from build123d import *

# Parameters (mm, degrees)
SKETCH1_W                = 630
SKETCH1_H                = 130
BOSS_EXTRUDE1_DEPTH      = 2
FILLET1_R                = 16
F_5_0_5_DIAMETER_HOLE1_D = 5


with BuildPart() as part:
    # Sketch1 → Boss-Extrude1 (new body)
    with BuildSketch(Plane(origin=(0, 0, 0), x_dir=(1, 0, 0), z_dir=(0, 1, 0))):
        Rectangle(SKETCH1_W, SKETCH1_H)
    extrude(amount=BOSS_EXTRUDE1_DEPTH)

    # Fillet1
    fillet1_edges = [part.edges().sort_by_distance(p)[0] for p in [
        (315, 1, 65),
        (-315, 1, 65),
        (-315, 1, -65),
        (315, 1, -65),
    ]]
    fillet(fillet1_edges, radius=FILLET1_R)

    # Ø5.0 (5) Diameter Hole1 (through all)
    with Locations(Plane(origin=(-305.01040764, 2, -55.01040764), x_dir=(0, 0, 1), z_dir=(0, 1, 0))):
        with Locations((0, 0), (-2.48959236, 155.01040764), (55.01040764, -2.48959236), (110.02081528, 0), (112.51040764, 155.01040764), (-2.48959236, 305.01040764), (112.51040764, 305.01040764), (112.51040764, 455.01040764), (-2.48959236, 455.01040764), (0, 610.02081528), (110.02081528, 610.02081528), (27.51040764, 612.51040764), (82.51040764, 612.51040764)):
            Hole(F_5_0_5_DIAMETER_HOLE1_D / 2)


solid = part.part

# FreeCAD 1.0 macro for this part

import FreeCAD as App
import Part
import Sketcher
from FreeCAD import Vector
Q = App.Units.Quantity


def edges_at(feature, points):
    """Names of the edges that pass closest to the given points."""
    edges = feature.Shape.Edges
    near = lambda p: min(range(len(edges)), key=lambda i: edges[i].distToShape(Part.Vertex(*p))[0])
    return sorted({f"Edge{near(p) + 1}" for p in points})


def add_polygon(sketch, points):
    """Adds a closed chain of lines whose ends are joined by coincident constraints."""
    first, n = sketch.GeometryCount, len(points)
    for a, b in zip(points, points[1:] + points[:1]):
        sketch.addGeometry(Part.LineSegment(App.Vector(*a, 0), App.Vector(*b, 0)), False)
    for i in range(n):
        sketch.addConstraint(Sketcher.Constraint("Coincident", first + i, 2, first + (i + 1) % n, 1))

doc = App.newDocument("Part")
body = doc.addObject("PartDesign::Body", "Body")

# Sketch on XZ plane
sketch1 = body.newObject("Sketcher::SketchObject", "Sketch")
sketch1.AttachmentSupport = (doc.getObject("XZ_Plane"), [""])
sketch1.MapMode = "FlatFace"
add_polygon(sketch1, [(-315, -65), (-315, 65), (315, 65), (315, -65)])  # lines 0-3
sketch1.addConstraint(Sketcher.Constraint("Vertical", 0))
sketch1.addConstraint(Sketcher.Constraint("Horizontal", 1))
sketch1.addConstraint(Sketcher.Constraint("Vertical", 2))
sketch1.addConstraint(Sketcher.Constraint("Horizontal", 3))
sketch1.addConstraint(Sketcher.Constraint("Symmetric", 0, 2, 2, 2, -1, 1))
sketch1.addConstraint(Sketcher.Constraint("DistanceX", 1, 1, 1, 2, Q("630 mm")))
sketch1.addConstraint(Sketcher.Constraint("DistanceY", 0, 1, 0, 2, Q("130 mm")))
pad1 = body.newObject("PartDesign::Pad", "Pad")
pad1.Profile = sketch1
pad1.Length = 2
pad1.Reversed = True
doc.recompute()

fillet = body.newObject("PartDesign::Fillet", "Fillet")
fillet.Base = (pad1, edges_at(pad1, [
    (315, 1, 65),
    (-315, 1, 65),
    (-315, 1, -65),
    (315, 1, -65),
]))
fillet.Radius = 16

# Sketch on XZ plane
sketch2 = body.newObject("Sketcher::SketchObject", "Sketch001")
sketch2.AttachmentSupport = (doc.getObject("XZ_Plane"), [""])
sketch2.MapMode = "FlatFace"
sketch2.AttachmentOffset = App.Placement(Vector(0, 0, -2), App.Rotation())
sketch2.addGeometry(Part.Circle(Vector(-305, -55, 0), Vector(0, 0, 1), 2.5), False)
sketch2.addGeometry(Part.Circle(Vector(-150, -57.5, 0), Vector(0, 0, 1), 2.5), False)
sketch2.addGeometry(Part.Circle(Vector(-307.5, 0, 0), Vector(0, 0, 1), 2.5), False)
sketch2.addGeometry(Part.Circle(Vector(-305, 55, 0), Vector(0, 0, 1), 2.5), False)
sketch2.addGeometry(Part.Circle(Vector(-150, 57.5, 0), Vector(0, 0, 1), 2.5), False)
sketch2.addGeometry(Part.Circle(Vector(0, -57.5, 0), Vector(0, 0, 1), 2.5), False)
sketch2.addGeometry(Part.Circle(Vector(0, 57.5, 0), Vector(0, 0, 1), 2.5), False)
sketch2.addGeometry(Part.Circle(Vector(150, 57.5, 0), Vector(0, 0, 1), 2.5), False)
sketch2.addGeometry(Part.Circle(Vector(150, -57.5, 0), Vector(0, 0, 1), 2.5), False)
sketch2.addGeometry(Part.Circle(Vector(305, -55, 0), Vector(0, 0, 1), 2.5), False)
sketch2.addGeometry(Part.Circle(Vector(305, 55, 0), Vector(0, 0, 1), 2.5), False)
sketch2.addGeometry(Part.Circle(Vector(307.5, -27.5, 0), Vector(0, 0, 1), 2.5), False)
sketch2.addGeometry(Part.Circle(Vector(307.5, 27.5, 0), Vector(0, 0, 1), 2.5), False)
sketch2.addConstraint(Sketcher.Constraint("Equal", 0, 1))
sketch2.addConstraint(Sketcher.Constraint("Equal", 1, 2))
sketch2.addConstraint(Sketcher.Constraint("Equal", 2, 3))
sketch2.addConstraint(Sketcher.Constraint("Equal", 3, 4))
sketch2.addConstraint(Sketcher.Constraint("Equal", 4, 5))
sketch2.addConstraint(Sketcher.Constraint("Equal", 5, 6))
sketch2.addConstraint(Sketcher.Constraint("Equal", 6, 7))
sketch2.addConstraint(Sketcher.Constraint("Equal", 7, 8))
sketch2.addConstraint(Sketcher.Constraint("Equal", 8, 9))
sketch2.addConstraint(Sketcher.Constraint("Equal", 9, 10))
sketch2.addConstraint(Sketcher.Constraint("Equal", 10, 11))
sketch2.addConstraint(Sketcher.Constraint("Equal", 11, 12))
sketch2.addConstraint(Sketcher.Constraint("Symmetric", 5, 3, 6, 3, -1, 1))
sketch2.addConstraint(Sketcher.Constraint("Symmetric", 1, 3, 7, 3, -1, 1))
sketch2.addConstraint(Sketcher.Constraint("Symmetric", 4, 3, 8, 3, -1, 1))
sketch2.addConstraint(Sketcher.Constraint("Symmetric", 3, 3, 9, 3, -1, 1))
sketch2.addConstraint(Sketcher.Constraint("Symmetric", 0, 3, 10, 3, -1, 1))
sketch2.addConstraint(Sketcher.Constraint("Symmetric", 4, 3, 7, 3, -2))
sketch2.addConstraint(Sketcher.Constraint("Symmetric", 0, 3, 9, 3, -2))
sketch2.addConstraint(Sketcher.Constraint("Symmetric", 11, 3, 12, 3, -1))
sketch2.addConstraint(Sketcher.Constraint("PointOnObject", 2, 3, -1))
sketch2.addConstraint(Sketcher.Constraint("PointOnObject", 5, 3, -2))
sketch2.addConstraint(Sketcher.Constraint("Horizontal", 1, 3, 5, 3))
sketch2.addConstraint(Sketcher.Constraint("Diameter", 0, Q("5 mm")))
sketch2.addConstraint(Sketcher.Constraint("DistanceX", 1, 3, -1, 1, Q("150 mm")))
sketch2.addConstraint(Sketcher.Constraint("DistanceY", 1, 3, 4, 3, Q("115 mm")))
sketch2.addConstraint(Sketcher.Constraint("DistanceY", 8, 3, 11, 3, Q("30 mm")))
sketch2.addConstraint(Sketcher.Constraint("DistanceX", 2, 3, -1, 1, Q("307.5 mm")))
sketch2.addConstraint(Sketcher.Constraint("DistanceX", -1, 1, 11, 3, Q("307.5 mm")))
sketch2.addConstraint(Sketcher.Constraint("DistanceX", 0, 3, -1, 1, Q("305.010408 mm")))
sketch2.addConstraint(Sketcher.Constraint("DistanceY", 0, 3, -1, 1, Q("55.010408 mm")))
doc.recompute()
hole = body.newObject("PartDesign::Hole", "Hole")
hole.Profile = sketch2
hole.ThreadType = "None"
hole.Diameter = 5
hole.DepthType = "ThroughAll"
hole.Reversed = True

doc.recompute()
